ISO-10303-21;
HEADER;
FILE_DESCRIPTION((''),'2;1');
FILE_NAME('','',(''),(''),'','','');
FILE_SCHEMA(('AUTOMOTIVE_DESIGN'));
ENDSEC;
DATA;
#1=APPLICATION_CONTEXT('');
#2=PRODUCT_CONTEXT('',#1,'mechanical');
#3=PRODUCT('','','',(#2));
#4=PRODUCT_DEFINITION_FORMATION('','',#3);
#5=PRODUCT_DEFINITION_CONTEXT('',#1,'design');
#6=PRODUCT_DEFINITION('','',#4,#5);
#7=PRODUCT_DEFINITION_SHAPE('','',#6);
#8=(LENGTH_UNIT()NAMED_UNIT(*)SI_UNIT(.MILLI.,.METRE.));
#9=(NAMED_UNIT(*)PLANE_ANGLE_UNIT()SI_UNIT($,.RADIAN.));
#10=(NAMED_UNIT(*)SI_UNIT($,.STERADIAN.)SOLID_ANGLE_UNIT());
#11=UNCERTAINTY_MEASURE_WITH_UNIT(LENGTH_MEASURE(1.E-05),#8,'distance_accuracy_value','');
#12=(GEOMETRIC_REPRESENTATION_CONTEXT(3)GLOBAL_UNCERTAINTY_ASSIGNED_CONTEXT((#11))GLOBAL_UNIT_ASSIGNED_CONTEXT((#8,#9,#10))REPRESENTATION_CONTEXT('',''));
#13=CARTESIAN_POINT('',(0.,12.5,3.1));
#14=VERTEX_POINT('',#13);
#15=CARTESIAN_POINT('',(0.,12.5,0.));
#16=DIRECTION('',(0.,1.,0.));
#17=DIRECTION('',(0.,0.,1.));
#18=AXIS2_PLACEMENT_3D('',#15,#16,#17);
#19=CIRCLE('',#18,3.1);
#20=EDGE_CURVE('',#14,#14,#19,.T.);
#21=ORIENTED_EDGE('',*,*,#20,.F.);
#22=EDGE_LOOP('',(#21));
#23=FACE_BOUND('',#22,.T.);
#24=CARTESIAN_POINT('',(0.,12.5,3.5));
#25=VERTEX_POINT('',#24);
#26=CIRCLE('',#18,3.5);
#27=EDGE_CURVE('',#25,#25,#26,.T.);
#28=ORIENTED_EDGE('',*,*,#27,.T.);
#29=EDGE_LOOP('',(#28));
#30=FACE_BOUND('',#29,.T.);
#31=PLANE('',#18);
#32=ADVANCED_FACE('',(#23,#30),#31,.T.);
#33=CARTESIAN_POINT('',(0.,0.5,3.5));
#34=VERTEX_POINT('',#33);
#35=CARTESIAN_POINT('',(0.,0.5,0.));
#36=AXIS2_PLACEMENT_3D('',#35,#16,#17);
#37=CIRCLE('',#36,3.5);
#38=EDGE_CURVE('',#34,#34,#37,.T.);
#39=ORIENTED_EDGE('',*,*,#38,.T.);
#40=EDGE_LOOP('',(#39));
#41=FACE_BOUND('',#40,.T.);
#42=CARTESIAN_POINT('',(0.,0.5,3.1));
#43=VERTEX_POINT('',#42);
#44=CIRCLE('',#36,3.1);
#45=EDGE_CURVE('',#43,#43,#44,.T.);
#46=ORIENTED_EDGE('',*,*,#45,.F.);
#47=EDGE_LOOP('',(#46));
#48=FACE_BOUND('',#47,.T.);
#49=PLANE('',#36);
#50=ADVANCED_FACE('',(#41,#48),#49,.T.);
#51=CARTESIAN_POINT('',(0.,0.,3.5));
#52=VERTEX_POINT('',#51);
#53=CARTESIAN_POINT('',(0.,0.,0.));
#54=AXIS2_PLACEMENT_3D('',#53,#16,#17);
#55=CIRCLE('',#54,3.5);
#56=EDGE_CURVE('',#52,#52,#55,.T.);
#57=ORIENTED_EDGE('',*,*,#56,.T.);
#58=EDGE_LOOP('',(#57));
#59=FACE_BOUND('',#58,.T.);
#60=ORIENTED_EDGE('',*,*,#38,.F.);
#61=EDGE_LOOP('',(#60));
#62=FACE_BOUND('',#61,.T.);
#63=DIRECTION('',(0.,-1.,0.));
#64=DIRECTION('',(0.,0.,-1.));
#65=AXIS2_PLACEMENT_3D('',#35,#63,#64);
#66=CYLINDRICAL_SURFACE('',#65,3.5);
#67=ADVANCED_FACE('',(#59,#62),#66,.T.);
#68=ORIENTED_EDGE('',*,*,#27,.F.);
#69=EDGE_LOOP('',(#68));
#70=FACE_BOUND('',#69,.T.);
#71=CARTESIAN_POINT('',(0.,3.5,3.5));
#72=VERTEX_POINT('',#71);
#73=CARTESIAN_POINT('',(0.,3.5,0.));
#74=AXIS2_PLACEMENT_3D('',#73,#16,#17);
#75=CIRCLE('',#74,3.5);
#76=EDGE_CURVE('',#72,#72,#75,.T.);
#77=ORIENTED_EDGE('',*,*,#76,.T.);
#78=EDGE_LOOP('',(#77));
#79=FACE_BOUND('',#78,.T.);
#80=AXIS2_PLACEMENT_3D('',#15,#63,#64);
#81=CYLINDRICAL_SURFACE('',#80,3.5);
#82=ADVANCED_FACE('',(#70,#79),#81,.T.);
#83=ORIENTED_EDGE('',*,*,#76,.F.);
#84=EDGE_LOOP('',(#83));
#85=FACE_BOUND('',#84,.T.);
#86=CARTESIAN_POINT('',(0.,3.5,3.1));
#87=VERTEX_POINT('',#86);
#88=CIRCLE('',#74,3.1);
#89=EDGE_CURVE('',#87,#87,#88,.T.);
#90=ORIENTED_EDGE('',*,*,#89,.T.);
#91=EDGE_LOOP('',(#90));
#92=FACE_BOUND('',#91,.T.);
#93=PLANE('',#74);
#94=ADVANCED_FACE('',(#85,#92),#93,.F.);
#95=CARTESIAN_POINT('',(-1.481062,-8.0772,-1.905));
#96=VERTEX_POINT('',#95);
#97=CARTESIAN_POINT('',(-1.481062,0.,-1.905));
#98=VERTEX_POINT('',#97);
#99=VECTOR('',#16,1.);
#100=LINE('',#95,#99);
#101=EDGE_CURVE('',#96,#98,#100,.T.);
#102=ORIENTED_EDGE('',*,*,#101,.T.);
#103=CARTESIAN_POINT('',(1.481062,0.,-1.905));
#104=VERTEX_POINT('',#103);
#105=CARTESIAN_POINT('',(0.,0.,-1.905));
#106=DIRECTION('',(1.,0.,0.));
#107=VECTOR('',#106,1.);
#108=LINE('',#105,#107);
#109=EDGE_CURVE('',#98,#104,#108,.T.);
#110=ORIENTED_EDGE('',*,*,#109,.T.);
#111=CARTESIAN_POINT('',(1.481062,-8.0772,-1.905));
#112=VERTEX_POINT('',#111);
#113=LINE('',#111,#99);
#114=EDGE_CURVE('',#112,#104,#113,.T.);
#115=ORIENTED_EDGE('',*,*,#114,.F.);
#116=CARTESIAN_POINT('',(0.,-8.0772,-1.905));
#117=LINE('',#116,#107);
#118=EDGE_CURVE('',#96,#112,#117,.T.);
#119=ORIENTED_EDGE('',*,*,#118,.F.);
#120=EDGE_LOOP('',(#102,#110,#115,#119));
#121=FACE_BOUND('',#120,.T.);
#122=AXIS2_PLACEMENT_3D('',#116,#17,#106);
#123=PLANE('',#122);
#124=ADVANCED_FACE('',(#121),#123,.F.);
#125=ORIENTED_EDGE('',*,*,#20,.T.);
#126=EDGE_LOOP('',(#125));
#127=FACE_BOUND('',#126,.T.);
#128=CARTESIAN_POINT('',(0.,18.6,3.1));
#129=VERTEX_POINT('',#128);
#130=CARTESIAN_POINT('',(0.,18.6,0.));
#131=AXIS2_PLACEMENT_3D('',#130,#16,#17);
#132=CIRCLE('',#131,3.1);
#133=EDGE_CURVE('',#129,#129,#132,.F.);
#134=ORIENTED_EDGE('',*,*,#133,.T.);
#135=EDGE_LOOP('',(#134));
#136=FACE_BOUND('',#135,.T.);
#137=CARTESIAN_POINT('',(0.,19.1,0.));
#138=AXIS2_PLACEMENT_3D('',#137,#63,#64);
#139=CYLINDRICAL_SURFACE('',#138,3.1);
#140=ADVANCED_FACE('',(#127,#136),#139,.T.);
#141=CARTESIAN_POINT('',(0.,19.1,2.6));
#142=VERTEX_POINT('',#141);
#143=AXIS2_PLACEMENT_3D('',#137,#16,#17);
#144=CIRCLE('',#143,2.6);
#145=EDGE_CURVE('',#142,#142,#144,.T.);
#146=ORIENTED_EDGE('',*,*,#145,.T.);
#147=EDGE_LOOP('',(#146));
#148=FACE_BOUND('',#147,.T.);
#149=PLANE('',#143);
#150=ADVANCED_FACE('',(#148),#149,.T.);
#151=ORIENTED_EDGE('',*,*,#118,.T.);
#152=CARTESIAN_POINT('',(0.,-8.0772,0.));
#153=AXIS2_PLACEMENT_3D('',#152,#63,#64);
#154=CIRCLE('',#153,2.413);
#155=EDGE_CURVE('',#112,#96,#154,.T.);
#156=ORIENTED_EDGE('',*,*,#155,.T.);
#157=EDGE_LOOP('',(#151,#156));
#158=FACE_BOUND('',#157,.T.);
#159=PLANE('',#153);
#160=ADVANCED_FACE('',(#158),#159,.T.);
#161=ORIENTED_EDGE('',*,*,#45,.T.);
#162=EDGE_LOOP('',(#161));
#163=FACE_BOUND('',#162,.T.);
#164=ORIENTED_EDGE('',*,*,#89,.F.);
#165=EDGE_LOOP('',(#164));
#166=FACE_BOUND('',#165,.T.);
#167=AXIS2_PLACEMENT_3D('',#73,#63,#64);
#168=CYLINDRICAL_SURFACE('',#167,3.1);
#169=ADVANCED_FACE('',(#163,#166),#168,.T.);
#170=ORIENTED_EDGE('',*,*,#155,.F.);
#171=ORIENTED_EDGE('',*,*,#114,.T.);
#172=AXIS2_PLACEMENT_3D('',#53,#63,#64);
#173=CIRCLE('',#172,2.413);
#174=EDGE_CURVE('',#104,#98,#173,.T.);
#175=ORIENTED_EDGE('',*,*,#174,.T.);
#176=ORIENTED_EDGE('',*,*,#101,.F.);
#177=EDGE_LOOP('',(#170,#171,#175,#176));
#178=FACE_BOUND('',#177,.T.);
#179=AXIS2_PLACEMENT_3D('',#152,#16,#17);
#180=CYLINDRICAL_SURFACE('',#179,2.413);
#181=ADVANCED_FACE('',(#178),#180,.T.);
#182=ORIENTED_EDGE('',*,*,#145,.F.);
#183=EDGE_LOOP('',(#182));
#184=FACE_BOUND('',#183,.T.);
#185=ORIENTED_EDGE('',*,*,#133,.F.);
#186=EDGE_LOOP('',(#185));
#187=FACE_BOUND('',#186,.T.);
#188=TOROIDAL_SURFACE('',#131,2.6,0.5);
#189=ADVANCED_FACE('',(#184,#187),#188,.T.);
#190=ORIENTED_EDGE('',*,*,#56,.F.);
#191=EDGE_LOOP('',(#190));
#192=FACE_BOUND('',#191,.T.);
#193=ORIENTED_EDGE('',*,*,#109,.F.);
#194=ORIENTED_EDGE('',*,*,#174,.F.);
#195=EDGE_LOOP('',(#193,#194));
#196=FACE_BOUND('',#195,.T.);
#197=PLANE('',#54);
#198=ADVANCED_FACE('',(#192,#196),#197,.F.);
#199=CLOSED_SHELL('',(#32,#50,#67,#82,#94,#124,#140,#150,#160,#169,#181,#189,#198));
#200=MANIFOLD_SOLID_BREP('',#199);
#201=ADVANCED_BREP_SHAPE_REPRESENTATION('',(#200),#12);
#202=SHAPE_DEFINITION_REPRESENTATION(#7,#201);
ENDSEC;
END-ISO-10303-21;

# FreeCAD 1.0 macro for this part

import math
import FreeCAD as App
import Part
import Sketcher
from FreeCAD import Vector


def edges_at(feature, points):
    """Names of the edges that pass closest to the given points."""
    edges = feature.Shape.Edges
    near = lambda p: min(range(len(edges)), key=lambda i: edges[i].distToShape(Part.Vertex(*p))[0])
    return sorted({f"Edge{near(p) + 1}" for p in points})

doc = App.newDocument("Part")
params = doc.addObject("Spreadsheet::Sheet", "Params")
for row, (alias, value) in enumerate([
    ("sketch1_diameter", "7 mm"),
    ("pad1_length", "0.5 mm"),
    ("sketch2_diameter", "6.2 mm"),
    ("pad2_length", "3 mm"),
    ("sketch3_diameter", "7 mm"),
    ("pad3_length", "9 mm"),
    ("sketch4_diameter", "6.2 mm"),
    ("pad4_length", "6.6 mm"),
    ("fillet_radius", "0.5 mm"),
    ("pad5_length", "8.0772 mm"),
], start=1):
    params.set(f"A{row}", alias)
    params.set(f"B{row}", "=" + value)
    params.setAlias(f"B{row}", alias)

body = doc.addObject("PartDesign::Body", "Body")

# Sketch on XZ plane
sketch1 = doc.addObject("Sketcher::SketchObject", "Sketch")
body.addObject(sketch1)
sketch1.AttachmentSupport = (doc.XZ_Plane, [""])
sketch1.MapMode = "FlatFace"
sketch1.addGeometry(Part.Circle(Vector(0, 0, 0), Vector(0, 0, 1), 3.5), False)
sketch1.addConstraint(Sketcher.Constraint("Coincident", 0, 3, -1, 1))
sketch1.addConstraint(Sketcher.Constraint("Diameter", 0, 7.0))
sketch1.setExpression("Constraints[1]", "Params.sketch1_diameter")
pad1 = doc.addObject("PartDesign::Pad", "Pad")
body.addObject(pad1)
pad1.Profile = sketch1
pad1.setExpression("Length", "Params.pad1_length")
pad1.Reversed = True

# Sketch on XZ plane
sketch2 = doc.addObject("Sketcher::SketchObject", "Sketch001")
body.addObject(sketch2)
sketch2.AttachmentSupport = (doc.XZ_Plane, [""])
sketch2.MapMode = "FlatFace"
sketch2.AttachmentOffset = App.Placement(Vector(0, 0, -0.5), App.Rotation())
sketch2.addGeometry(Part.Circle(Vector(0, 0, 0), Vector(0, 0, 1), 3.1), False)
sketch2.addConstraint(Sketcher.Constraint("Coincident", 0, 3, -1, 1))
sketch2.addConstraint(Sketcher.Constraint("Diameter", 0, 6.2))
sketch2.setExpression("Constraints[1]", "Params.sketch2_diameter")
pad2 = doc.addObject("PartDesign::Pad", "Pad001")
body.addObject(pad2)
pad2.Profile = sketch2
pad2.setExpression("Length", "Params.pad2_length")
pad2.Reversed = True

# Sketch on XZ plane
sketch3 = doc.addObject("Sketcher::SketchObject", "Sketch002")
body.addObject(sketch3)
sketch3.AttachmentSupport = (doc.XZ_Plane, [""])
sketch3.MapMode = "FlatFace"
sketch3.AttachmentOffset = App.Placement(Vector(0, 0, -3.5), App.Rotation())
sketch3.addGeometry(Part.Circle(Vector(0, 0, 0), Vector(0, 0, 1), 3.5), False)
sketch3.addConstraint(Sketcher.Constraint("Coincident", 0, 3, -1, 1))
sketch3.addConstraint(Sketcher.Constraint("Diameter", 0, 7.0))
sketch3.setExpression("Constraints[1]", "Params.sketch3_diameter")
pad3 = doc.addObject("PartDesign::Pad", "Pad002")
body.addObject(pad3)
pad3.Profile = sketch3
pad3.setExpression("Length", "Params.pad3_length")
pad3.Reversed = True

# Sketch on XZ plane
sketch4 = doc.addObject("Sketcher::SketchObject", "Sketch003")
body.addObject(sketch4)
sketch4.AttachmentSupport = (doc.XZ_Plane, [""])
sketch4.MapMode = "FlatFace"
sketch4.AttachmentOffset = App.Placement(Vector(0, 0, -12.5), App.Rotation())
sketch4.addGeometry(Part.Circle(Vector(0, 0, 0), Vector(0, 0, 1), 3.1), False)
sketch4.addConstraint(Sketcher.Constraint("Coincident", 0, 3, -1, 1))
sketch4.addConstraint(Sketcher.Constraint("Diameter", 0, 6.2))
sketch4.setExpression("Constraints[1]", "Params.sketch4_diameter")
pad4 = doc.addObject("PartDesign::Pad", "Pad003")
body.addObject(pad4)
pad4.Profile = sketch4
pad4.setExpression("Length", "Params.pad4_length")
pad4.Reversed = True
doc.recompute()

fillet = doc.addObject("PartDesign::Fillet", "Fillet")
body.addObject(fillet)
fillet.Base = (pad4, edges_at(pad4, [(0, 19.1, -3.1)]))
fillet.setExpression("Radius", "Params.fillet_radius")

# Sketch on XZ plane
sketch5 = doc.addObject("Sketcher::SketchObject", "Sketch004")
body.addObject(sketch5)
sketch5.AttachmentSupport = (doc.XZ_Plane, [""])
sketch5.MapMode = "FlatFace"
sketch5.addGeometry(Part.ArcOfCircle(Part.Circle(Vector(0, 0, 0), Vector(0, 0, 1), 2.4), math.radians(0), math.radians(232)), False)
sketch5.addGeometry(Part.LineSegment(Vector(-1.5, -1.9, 0), Vector(1.5, -1.9, 0)), False)
sketch5.addGeometry(Part.ArcOfCircle(Part.Circle(Vector(0, 0, 0), Vector(0, 0, 1), 2.4), math.radians(-52), math.radians(0)), False)
sketch5.addConstraint(Sketcher.Constraint("Coincident", 0, 2, 1, 1))
sketch5.addConstraint(Sketcher.Constraint("Coincident", 1, 2, 2, 1))
sketch5.addConstraint(Sketcher.Constraint("Tangent", 2, 2, 0, 1))
sketch5.addConstraint(Sketcher.Constraint("Horizontal", 1))
sketch5.addConstraint(Sketcher.Constraint("Coincident", 0, 3, -1, 1))
sketch5.addConstraint(Sketcher.Constraint("Equal", 0, 2))
sketch5.addConstraint(Sketcher.Constraint("PointOnObject", 2, 2, -1))
sketch5.addConstraint(Sketcher.Constraint("Radius", 0, 2.413))
sketch5.addConstraint(Sketcher.Constraint("DistanceY", 0, 2, -1, 1, 1.905))
pad5 = doc.addObject("PartDesign::Pad", "Pad004")
body.addObject(pad5)
pad5.Profile = sketch5
pad5.setExpression("Length", "Params.pad5_length")

doc.recompute()
